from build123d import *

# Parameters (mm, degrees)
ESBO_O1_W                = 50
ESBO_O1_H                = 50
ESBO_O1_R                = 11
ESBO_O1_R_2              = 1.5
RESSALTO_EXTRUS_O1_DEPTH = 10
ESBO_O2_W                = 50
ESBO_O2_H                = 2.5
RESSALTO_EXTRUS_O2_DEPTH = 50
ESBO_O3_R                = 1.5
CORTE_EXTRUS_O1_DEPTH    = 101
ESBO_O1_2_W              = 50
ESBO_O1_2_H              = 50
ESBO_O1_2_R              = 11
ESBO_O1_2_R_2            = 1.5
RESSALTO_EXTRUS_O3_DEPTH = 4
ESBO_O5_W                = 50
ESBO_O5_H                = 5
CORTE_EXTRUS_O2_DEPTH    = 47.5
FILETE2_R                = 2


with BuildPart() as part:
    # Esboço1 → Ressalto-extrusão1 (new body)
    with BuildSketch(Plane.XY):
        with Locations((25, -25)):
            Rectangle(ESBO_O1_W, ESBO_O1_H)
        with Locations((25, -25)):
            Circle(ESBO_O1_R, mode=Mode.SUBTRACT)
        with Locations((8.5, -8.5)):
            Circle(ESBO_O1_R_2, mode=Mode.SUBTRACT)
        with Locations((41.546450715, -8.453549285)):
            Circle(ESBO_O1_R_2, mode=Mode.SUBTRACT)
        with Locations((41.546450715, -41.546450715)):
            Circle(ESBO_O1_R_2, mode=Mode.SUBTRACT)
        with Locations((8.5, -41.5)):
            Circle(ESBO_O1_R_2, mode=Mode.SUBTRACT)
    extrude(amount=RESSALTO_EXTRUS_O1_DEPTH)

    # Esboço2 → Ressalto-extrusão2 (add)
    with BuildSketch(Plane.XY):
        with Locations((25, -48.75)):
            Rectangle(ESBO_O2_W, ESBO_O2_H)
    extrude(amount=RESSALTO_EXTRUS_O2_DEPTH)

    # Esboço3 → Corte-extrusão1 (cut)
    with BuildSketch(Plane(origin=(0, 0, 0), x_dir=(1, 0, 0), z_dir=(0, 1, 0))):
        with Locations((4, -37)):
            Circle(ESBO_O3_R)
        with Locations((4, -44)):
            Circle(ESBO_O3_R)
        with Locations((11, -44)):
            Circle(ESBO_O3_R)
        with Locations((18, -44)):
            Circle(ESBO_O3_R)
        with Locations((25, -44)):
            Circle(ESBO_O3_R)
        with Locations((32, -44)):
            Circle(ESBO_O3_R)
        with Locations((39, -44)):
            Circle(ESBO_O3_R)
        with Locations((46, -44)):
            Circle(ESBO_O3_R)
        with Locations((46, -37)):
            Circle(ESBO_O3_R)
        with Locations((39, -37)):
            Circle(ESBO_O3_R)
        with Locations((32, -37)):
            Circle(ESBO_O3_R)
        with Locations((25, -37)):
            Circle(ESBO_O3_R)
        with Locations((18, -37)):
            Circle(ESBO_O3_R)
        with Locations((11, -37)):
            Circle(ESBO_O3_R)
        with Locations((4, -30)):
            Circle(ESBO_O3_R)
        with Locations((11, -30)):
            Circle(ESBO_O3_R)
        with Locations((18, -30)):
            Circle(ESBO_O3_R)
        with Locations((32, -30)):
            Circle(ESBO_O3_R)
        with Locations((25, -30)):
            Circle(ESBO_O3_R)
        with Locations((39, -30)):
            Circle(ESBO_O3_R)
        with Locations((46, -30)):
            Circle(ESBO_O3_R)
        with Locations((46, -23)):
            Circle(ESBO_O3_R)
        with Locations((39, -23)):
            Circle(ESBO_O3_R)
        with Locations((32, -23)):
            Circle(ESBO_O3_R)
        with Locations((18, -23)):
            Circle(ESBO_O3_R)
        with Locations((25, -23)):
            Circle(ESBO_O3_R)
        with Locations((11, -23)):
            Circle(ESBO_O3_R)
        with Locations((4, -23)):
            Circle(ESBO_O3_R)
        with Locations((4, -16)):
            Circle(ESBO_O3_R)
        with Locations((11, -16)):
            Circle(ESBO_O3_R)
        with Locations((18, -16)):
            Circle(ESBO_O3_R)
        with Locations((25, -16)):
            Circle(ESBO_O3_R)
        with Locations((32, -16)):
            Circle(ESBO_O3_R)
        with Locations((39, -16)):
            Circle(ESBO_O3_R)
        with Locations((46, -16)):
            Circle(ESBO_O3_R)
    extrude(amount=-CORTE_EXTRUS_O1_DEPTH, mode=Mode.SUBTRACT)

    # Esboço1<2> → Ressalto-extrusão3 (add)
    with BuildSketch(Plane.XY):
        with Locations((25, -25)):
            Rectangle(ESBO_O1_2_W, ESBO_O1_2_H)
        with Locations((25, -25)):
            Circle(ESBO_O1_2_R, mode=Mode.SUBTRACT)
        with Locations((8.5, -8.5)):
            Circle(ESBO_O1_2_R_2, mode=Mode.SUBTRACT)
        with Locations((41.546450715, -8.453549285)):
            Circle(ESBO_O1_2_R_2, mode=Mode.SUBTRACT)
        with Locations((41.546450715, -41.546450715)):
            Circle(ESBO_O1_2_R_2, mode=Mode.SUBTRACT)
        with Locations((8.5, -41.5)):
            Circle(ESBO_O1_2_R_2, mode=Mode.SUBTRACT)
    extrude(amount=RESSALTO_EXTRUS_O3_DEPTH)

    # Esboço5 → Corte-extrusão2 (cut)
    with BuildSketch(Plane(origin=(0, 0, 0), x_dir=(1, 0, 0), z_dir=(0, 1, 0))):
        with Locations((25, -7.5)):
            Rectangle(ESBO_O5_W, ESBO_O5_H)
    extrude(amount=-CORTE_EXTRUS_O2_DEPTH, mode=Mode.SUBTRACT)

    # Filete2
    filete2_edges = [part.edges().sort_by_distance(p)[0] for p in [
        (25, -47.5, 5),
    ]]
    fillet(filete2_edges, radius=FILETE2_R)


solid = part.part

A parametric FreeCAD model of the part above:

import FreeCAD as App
import Part
import Sketcher


def edges_at(feature, points):
    """Names of the edges that pass closest to the given points."""
    edges = feature.Shape.Edges
    near = lambda p: min(range(len(edges)), key=lambda i: edges[i].distToShape(Part.Vertex(*p))[0])
    return sorted({f"Edge{near(p) + 1}" for p in points})

doc = App.newDocument("Part")
params = doc.addObject("Spreadsheet::Sheet", "Params")
for row, (alias, value) in enumerate([
    ("sketch1_diameter", "3 mm"),
    ("sketch1_diameter2", "22 mm"),
    ("sketch1_width", "50 mm"),
    ("pad1_length", "10 mm"),
    ("sketch2_width", "50 mm"),
    ("sketch2_height", "2.5 mm"),
    ("pad2_length", "50 mm"),
    ("sketch3_diameter", "3 mm"),
    ("pocket1_length", "101 mm"),
    ("sketch4_diameter", "3 mm"),
    ("sketch4_diameter2", "22 mm"),
    ("sketch4_width", "50 mm"),
    ("pad3_length", "4 mm"),
    ("sketch5_width", "50 mm"),
    ("sketch5_height", "5 mm"),
    ("pocket2_length", "47.5 mm"),
    ("fillet_radius", "2 mm"),
], start=1):
    params.set(f"A{row}", alias)
    params.set(f"B{row}", "=" + value)
    params.setAlias(f"B{row}", alias)

body = doc.addObject("PartDesign::Body", "Body")

# Sketch on XY plane
sketch1 = body.newObject("Sketcher::SketchObject", "Sketch")
sketch1.AttachmentSupport = (doc.getObject("XY_Plane"), [""])
sketch1.MapMode = "FlatFace"
sketch1.addGeometry(Part.LineSegment(App.Vector(0, 0, 0), App.Vector(0, -50, 0)), False)
sketch1.addGeometry(Part.LineSegment(App.Vector(0, -50, 0), App.Vector(50, -50, 0)), False)
sketch1.addGeometry(Part.LineSegment(App.Vector(50, -50, 0), App.Vector(50, 0, 0)), False)
sketch1.addGeometry(Part.LineSegment(App.Vector(50, 0, 0), App.Vector(0, 0, 0)), False)
sketch1.addGeometry(Part.Circle(App.Vector(8.5, -41.5, 0), App.Vector(0, 0, 1), 1.5), False)
sketch1.addGeometry(Part.Circle(App.Vector(41.5, -41.5, 0), App.Vector(0, 0, 1), 1.5), False)
sketch1.addGeometry(Part.Circle(App.Vector(25, -25, 0), App.Vector(0, 0, 1), 11), False)
sketch1.addGeometry(Part.Circle(App.Vector(8.5, -8.5, 0), App.Vector(0, 0, 1), 1.5), False)
sketch1.addGeometry(Part.Circle(App.Vector(41.5, -8.5, 0), App.Vector(0, 0, 1), 1.5), False)
sketch1.addConstraint(Sketcher.Constraint("Coincident", 0, 2, 1, 1))
sketch1.addConstraint(Sketcher.Constraint("Coincident", 1, 2, 2, 1))
sketch1.addConstraint(Sketcher.Constraint("Coincident", 2, 2, 3, 1))
sketch1.addConstraint(Sketcher.Constraint("Coincident", 3, 2, 0, 1))
sketch1.addConstraint(Sketcher.Constraint("Vertical", 0))
sketch1.addConstraint(Sketcher.Constraint("Horizontal", 1))
sketch1.addConstraint(Sketcher.Constraint("Vertical", 2))
sketch1.addConstraint(Sketcher.Constraint("Horizontal", 3))
sketch1.addConstraint(Sketcher.Constraint("Coincident", 3, 2, -1, 1))
sketch1.addConstraint(Sketcher.Constraint("Equal", 4, 5))
sketch1.addConstraint(Sketcher.Constraint("Equal", 5, 7))
sketch1.addConstraint(Sketcher.Constraint("Equal", 7, 8))
sketch1.addConstraint(Sketcher.Constraint("Vertical", 4, 3, 7, 3))
sketch1.addConstraint(Sketcher.Constraint("Vertical", 5, 3, 8, 3))
sketch1.addConstraint(Sketcher.Constraint("Equal", 3, 0))
sketch1.addConstraint(Sketcher.Constraint("Diameter", 4, 3.0))
sketch1.addConstraint(Sketcher.Constraint("Diameter", 6, 22.0))
sketch1.addConstraint(Sketcher.Constraint("DistanceX", 1, 1, 1, 2, 50.0))
sketch1.addConstraint(Sketcher.Constraint("DistanceX", -1, 1, 6, 3, 25.0))
sketch1.addConstraint(Sketcher.Constraint("DistanceY", 6, 3, -1, 1, 25.0))
sketch1.addConstraint(Sketcher.Constraint("DistanceY", 4, 3, 7, 3, 33.0))
sketch1.addConstraint(Sketcher.Constraint("DistanceX", -1, 1, 4, 3, 8.5))
sketch1.addConstraint(Sketcher.Constraint("DistanceY", 4, 3, -1, 1, 41.5))
sketch1.addConstraint(Sketcher.Constraint("DistanceY", 5, 3, 8, 3, 33.092901))
sketch1.addConstraint(Sketcher.Constraint("DistanceX", -1, 1, 5, 3, 41.546451))
sketch1.addConstraint(Sketcher.Constraint("DistanceY", 5, 3, -1, 1, 41.546451))
sketch1.setExpression("Constraints[15]", "Params.sketch1_diameter")
sketch1.setExpression("Constraints[16]", "Params.sketch1_diameter2")
sketch1.setExpression("Constraints[17]", "Params.sketch1_width")
pad1 = body.newObject("PartDesign::Pad", "Pad")
pad1.Profile = sketch1
pad1.setExpression("Length", "Params.pad1_length")

# Sketch on XY plane
sketch2 = body.newObject("Sketcher::SketchObject", "Sketch001")
sketch2.AttachmentSupport = (doc.getObject("XY_Plane"), [""])
sketch2.MapMode = "FlatFace"
sketch2.addGeometry(Part.LineSegment(App.Vector(0, -47.5, 0), App.Vector(0, -50, 0)), False)
sketch2.addGeometry(Part.LineSegment(App.Vector(0, -50, 0), App.Vector(50, -50, 0)), False)
sketch2.addGeometry(Part.LineSegment(App.Vector(50, -50, 0), App.Vector(50, -47.5, 0)), False)
sketch2.addGeometry(Part.LineSegment(App.Vector(50, -47.5, 0), App.Vector(0, -47.5, 0)), False)
sketch2.addConstraint(Sketcher.Constraint("Coincident", 0, 2, 1, 1))
sketch2.addConstraint(Sketcher.Constraint("Coincident", 1, 2, 2, 1))
sketch2.addConstraint(Sketcher.Constraint("Coincident", 2, 2, 3, 1))
sketch2.addConstraint(Sketcher.Constraint("Coincident", 3, 2, 0, 1))
sketch2.addConstraint(Sketcher.Constraint("Vertical", 0))
sketch2.addConstraint(Sketcher.Constraint("Horizontal", 1))
sketch2.addConstraint(Sketcher.Constraint("Vertical", 2))
sketch2.addConstraint(Sketcher.Constraint("Horizontal", 3))
sketch2.addConstraint(Sketcher.Constraint("PointOnObject", 0, 2, -2))
sketch2.addConstraint(Sketcher.Constraint("DistanceX", 1, 1, 1, 2, 50.0))
sketch2.addConstraint(Sketcher.Constraint("DistanceY", 0, 2, 0, 1, 2.5))
sketch2.addConstraint(Sketcher.Constraint("DistanceY", 0, 2, -1, 1, 50.0))
sketch2.setExpression("Constraints[9]", "Params.sketch2_width")
sketch2.setExpression("Constraints[10]", "Params.sketch2_height")
pad2 = body.newObject("PartDesign::Pad", "Pad001")
pad2.Profile = sketch2
pad2.setExpression("Length", "Params.pad2_length")

# Sketch on XZ plane
sketch3 = body.newObject("Sketcher::SketchObject", "Sketch002")
sketch3.AttachmentSupport = (doc.getObject("XZ_Plane"), [""])
sketch3.MapMode = "FlatFace"
sketch3.addGeometry(Part.Circle(App.Vector(4, 37, 0), App.Vector(0, 0, 1), 1.5), False)
sketch3.addGeometry(Part.Circle(App.Vector(4, 44, 0), App.Vector(0, 0, 1), 1.5), False)
sketch3.addGeometry(Part.Circle(App.Vector(11, 44, 0), App.Vector(0, 0, 1), 1.5), False)
sketch3.addGeometry(Part.Circle(App.Vector(18, 44, 0), App.Vector(0, 0, 1), 1.5), False)
sketch3.addGeometry(Part.Circle(App.Vector(25, 44, 0), App.Vector(0, 0, 1), 1.5), False)
sketch3.addGeometry(Part.Circle(App.Vector(32, 44, 0), App.Vector(0, 0, 1), 1.5), False)
sketch3.addGeometry(Part.Circle(App.Vector(39, 44, 0), App.Vector(0, 0, 1), 1.5), False)
sketch3.addGeometry(Part.Circle(App.Vector(46, 44, 0), App.Vector(0, 0, 1), 1.5), False)
sketch3.addGeometry(Part.Circle(App.Vector(46, 37, 0), App.Vector(0, 0, 1), 1.5), False)
sketch3.addGeometry(Part.Circle(App.Vector(39, 37, 0), App.Vector(0, 0, 1), 1.5), False)
sketch3.addGeometry(Part.Circle(App.Vector(32, 37, 0), App.Vector(0, 0, 1), 1.5), False)
sketch3.addGeometry(Part.Circle(App.Vector(25, 37, 0), App.Vector(0, 0, 1), 1.5), False)
sketch3.addGeometry(Part.Circle(App.Vector(18, 37, 0), App.Vector(0, 0, 1), 1.5), False)
sketch3.addGeometry(Part.Circle(App.Vector(11, 37, 0), App.Vector(0, 0, 1), 1.5), False)
sketch3.addGeometry(Part.Circle(App.Vector(4, 30, 0), App.Vector(0, 0, 1), 1.5), False)
sketch3.addGeometry(Part.Circle(App.Vector(11, 30, 0), App.Vector(0, 0, 1), 1.5), False)
sketch3.addGeometry(Part.Circle(App.Vector(18, 30, 0), App.Vector(0, 0, 1), 1.5), False)
sketch3.addGeometry(Part.Circle(App.Vector(32, 30, 0), App.Vector(0, 0, 1), 1.5), False)
sketch3.addGeometry(Part.Circle(App.Vector(25, 30, 0), App.Vector(0, 0, 1), 1.5), False)
sketch3.addGeometry(Part.Circle(App.Vector(39, 30, 0), App.Vector(0, 0, 1), 1.5), False)
sketch3.addGeometry(Part.Circle(App.Vector(46, 30, 0), App.Vector(0, 0, 1), 1.5), False)
sketch3.addGeometry(Part.Circle(App.Vector(46, 23, 0), App.Vector(0, 0, 1), 1.5), False)
sketch3.addGeometry(Part.Circle(App.Vector(39, 23, 0), App.Vector(0, 0, 1), 1.5), False)
sketch3.addGeometry(Part.Circle(App.Vector(32, 23, 0), App.Vector(0, 0, 1), 1.5), False)
sketch3.addGeometry(Part.Circle(App.Vector(18, 23, 0), App.Vector(0, 0, 1), 1.5), False)
sketch3.addGeometry(Part.Circle(App.Vector(25, 23, 0), App.Vector(0, 0, 1), 1.5), False)
sketch3.addGeometry(Part.Circle(App.Vector(11, 23, 0), App.Vector(0, 0, 1), 1.5), False)
sketch3.addGeometry(Part.Circle(App.Vector(4, 23, 0), App.Vector(0, 0, 1), 1.5), False)
sketch3.addGeometry(Part.Circle(App.Vector(4, 16, 0), App.Vector(0, 0, 1), 1.5), False)
sketch3.addGeometry(Part.Circle(App.Vector(11, 16, 0), App.Vector(0, 0, 1), 1.5), False)
sketch3.addGeometry(Part.Circle(App.Vector(18, 16, 0), App.Vector(0, 0, 1), 1.5), False)
sketch3.addGeometry(Part.Circle(App.Vector(25, 16, 0), App.Vector(0, 0, 1), 1.5), False)
sketch3.addGeometry(Part.Circle(App.Vector(32, 16, 0), App.Vector(0, 0, 1), 1.5), False)
sketch3.addGeometry(Part.Circle(App.Vector(39, 16, 0), App.Vector(0, 0, 1), 1.5), False)
sketch3.addGeometry(Part.Circle(App.Vector(46, 16, 0), App.Vector(0, 0, 1), 1.5), False)
sketch3.addConstraint(Sketcher.Constraint("Equal", 0, 1))
sketch3.addConstraint(Sketcher.Constraint("Equal", 1, 2))
sketch3.addConstraint(Sketcher.Constraint("Equal", 2, 3))
sketch3.addConstraint(Sketcher.Constraint("Equal", 3, 4))
sketch3.addConstraint(Sketcher.Constraint("Equal", 4, 5))
sketch3.addConstraint(Sketcher.Constraint("Equal", 5, 6))
sketch3.addConstraint(Sketcher.Constraint("Equal", 6, 7))
sketch3.addConstraint(Sketcher.Constraint("Equal", 7, 8))
sketch3.addConstraint(Sketcher.Constraint("Equal", 8, 9))
sketch3.addConstraint(Sketcher.Constraint("Equal", 9, 10))
sketch3.addConstraint(Sketcher.Constraint("Equal", 10, 11))
sketch3.addConstraint(Sketcher.Constraint("Equal", 11, 12))
sketch3.addConstraint(Sketcher.Constraint("Equal", 12, 13))
sketch3.addConstraint(Sketcher.Constraint("Equal", 13, 14))
sketch3.addConstraint(Sketcher.Constraint("Equal", 14, 15))
sketch3.addConstraint(Sketcher.Constraint("Equal", 15, 16))
sketch3.addConstraint(Sketcher.Constraint("Equal", 16, 17))
sketch3.addConstraint(Sketcher.Constraint("Equal", 17, 18))
sketch3.addConstraint(Sketcher.Constraint("Equal", 18, 19))
sketch3.addConstraint(Sketcher.Constraint("Equal", 19, 20))
sketch3.addConstraint(Sketcher.Constraint("Equal", 20, 21))
sketch3.addConstraint(Sketcher.Constraint("Equal", 21, 22))
sketch3.addConstraint(Sketcher.Constraint("Equal", 22, 23))
sketch3.addConstraint(Sketcher.Constraint("Equal", 23, 24))
sketch3.addConstraint(Sketcher.Constraint("Equal", 24, 25))
sketch3.addConstraint(Sketcher.Constraint("Equal", 25, 26))
sketch3.addConstraint(Sketcher.Constraint("Equal", 26, 27))
sketch3.addConstraint(Sketcher.Constraint("Equal", 27, 28))
sketch3.addConstraint(Sketcher.Constraint("Equal", 28, 29))
sketch3.addConstraint(Sketcher.Constraint("Equal", 29, 30))
sketch3.addConstraint(Sketcher.Constraint("Equal", 30, 31))
sketch3.addConstraint(Sketcher.Constraint("Equal", 31, 32))
sketch3.addConstraint(Sketcher.Constraint("Equal", 32, 33))
sketch3.addConstraint(Sketcher.Constraint("Equal", 33, 34))
sketch3.addConstraint(Sketcher.Constraint("Horizontal", 1, 3, 2, 3))
sketch3.addConstraint(Sketcher.Constraint("Horizontal", 2, 3, 3, 3))
sketch3.addConstraint(Sketcher.Constraint("Horizontal", 3, 3, 4, 3))
sketch3.addConstraint(Sketcher.Constraint("Horizontal", 4, 3, 5, 3))
sketch3.addConstraint(Sketcher.Constraint("Horizontal", 5, 3, 6, 3))
sketch3.addConstraint(Sketcher.Constraint("Horizontal", 6, 3, 7, 3))
sketch3.addConstraint(Sketcher.Constraint("Horizontal", 0, 3, 8, 3))
sketch3.addConstraint(Sketcher.Constraint("Horizontal", 8, 3, 9, 3))
sketch3.addConstraint(Sketcher.Constraint("Horizontal", 9, 3, 10, 3))
sketch3.addConstraint(Sketcher.Constraint("Horizontal", 10, 3, 11, 3))
sketch3.addConstraint(Sketcher.Constraint("Horizontal", 11, 3, 12, 3))
sketch3.addConstraint(Sketcher.Constraint("Horizontal", 12, 3, 13, 3))
sketch3.addConstraint(Sketcher.Constraint("Horizontal", 14, 3, 15, 3))
sketch3.addConstraint(Sketcher.Constraint("Horizontal", 15, 3, 16, 3))
sketch3.addConstraint(Sketcher.Constraint("Horizontal", 16, 3, 17, 3))
sketch3.addConstraint(Sketcher.Constraint("Horizontal", 17, 3, 18, 3))
sketch3.addConstraint(Sketcher.Constraint("Horizontal", 18, 3, 19, 3))
sketch3.addConstraint(Sketcher.Constraint("Horizontal", 19, 3, 20, 3))
sketch3.addConstraint(Sketcher.Constraint("Horizontal", 21, 3, 22, 3))
sketch3.addConstraint(Sketcher.Constraint("Horizontal", 22, 3, 23, 3))
sketch3.addConstraint(Sketcher.Constraint("Horizontal", 23, 3, 24, 3))
sketch3.addConstraint(Sketcher.Constraint("Horizontal", 24, 3, 25, 3))
sketch3.addConstraint(Sketcher.Constraint("Horizontal", 25, 3, 26, 3))
sketch3.addConstraint(Sketcher.Constraint("Horizontal", 26, 3, 27, 3))
sketch3.addConstraint(Sketcher.Constraint("Horizontal", 28, 3, 29, 3))
sketch3.addConstraint(Sketcher.Constraint("Horizontal", 29, 3, 30, 3))
sketch3.addConstraint(Sketcher.Constraint("Horizontal", 30, 3, 31, 3))
sketch3.addConstraint(Sketcher.Constraint("Horizontal", 31, 3, 32, 3))
sketch3.addConstraint(Sketcher.Constraint("Horizontal", 32, 3, 33, 3))
sketch3.addConstraint(Sketcher.Constraint("Horizontal", 33, 3, 34, 3))
sketch3.addConstraint(Sketcher.Constraint("Vertical", 0, 3, 1, 3))
sketch3.addConstraint(Sketcher.Constraint("Vertical", 7, 3, 8, 3))
sketch3.addConstraint(Sketcher.Constraint("Vertical", 6, 3, 9, 3))
sketch3.addConstraint(Sketcher.Constraint("Vertical", 5, 3, 10, 3))
sketch3.addConstraint(Sketcher.Constraint("Vertical", 4, 3, 11, 3))
sketch3.addConstraint(Sketcher.Constraint("Vertical", 3, 3, 12, 3))
sketch3.addConstraint(Sketcher.Constraint("Vertical", 2, 3, 13, 3))
sketch3.addConstraint(Sketcher.Constraint("Vertical", 1, 3, 14, 3))
sketch3.addConstraint(Sketcher.Constraint("Vertical", 13, 3, 15, 3))
sketch3.addConstraint(Sketcher.Constraint("Vertical", 12, 3, 16, 3))
sketch3.addConstraint(Sketcher.Constraint("Vertical", 10, 3, 17, 3))
sketch3.addConstraint(Sketcher.Constraint("Vertical", 11, 3, 18, 3))
sketch3.addConstraint(Sketcher.Constraint("Vertical", 9, 3, 19, 3))
sketch3.addConstraint(Sketcher.Constraint("Vertical", 8, 3, 20, 3))
sketch3.addConstraint(Sketcher.Constraint("Vertical", 20, 3, 21, 3))
sketch3.addConstraint(Sketcher.Constraint("Vertical", 19, 3, 22, 3))
sketch3.addConstraint(Sketcher.Constraint("Vertical", 17, 3, 23, 3))
sketch3.addConstraint(Sketcher.Constraint("Vertical", 16, 3, 24, 3))
sketch3.addConstraint(Sketcher.Constraint("Vertical", 18, 3, 25, 3))
sketch3.addConstraint(Sketcher.Constraint("Vertical", 15, 3, 26, 3))
sketch3.addConstraint(Sketcher.Constraint("Vertical", 14, 3, 27, 3))
sketch3.addConstraint(Sketcher.Constraint("Vertical", 27, 3, 28, 3))
sketch3.addConstraint(Sketcher.Constraint("Vertical", 26, 3, 29, 3))
sketch3.addConstraint(Sketcher.Constraint("Vertical", 24, 3, 30, 3))
sketch3.addConstraint(Sketcher.Constraint("Vertical", 25, 3, 31, 3))
sketch3.addConstraint(Sketcher.Constraint("Vertical", 23, 3, 32, 3))
sketch3.addConstraint(Sketcher.Constraint("Vertical", 22, 3, 33, 3))
sketch3.addConstraint(Sketcher.Constraint("Vertical", 21, 3, 34, 3))
sketch3.addConstraint(Sketcher.Constraint("Diameter", 0, 3.0))
sketch3.addConstraint(Sketcher.Constraint("DistanceX", -1, 1, 0, 3, 4.0))
sketch3.addConstraint(Sketcher.Constraint("DistanceY", -1, 1, 0, 3, 37.0))
sketch3.addConstraint(Sketcher.Constraint("DistanceY", -1, 1, 1, 3, 44.0))
sketch3.addConstraint(Sketcher.Constraint("DistanceX", -1, 1, 2, 3, 11.0))
sketch3.addConstraint(Sketcher.Constraint("DistanceX", -1, 1, 3, 3, 18.0))
sketch3.addConstraint(Sketcher.Constraint("DistanceX", -1, 1, 4, 3, 25.0))
sketch3.addConstraint(Sketcher.Constraint("DistanceX", -1, 1, 5, 3, 32.0))
sketch3.addConstraint(Sketcher.Constraint("DistanceX", -1, 1, 6, 3, 39.0))
sketch3.addConstraint(Sketcher.Constraint("DistanceX", -1, 1, 7, 3, 46.0))
sketch3.addConstraint(Sketcher.Constraint("DistanceY", -1, 1, 14, 3, 30.0))
sketch3.addConstraint(Sketcher.Constraint("DistanceY", -1, 1, 21, 3, 23.0))
sketch3.addConstraint(Sketcher.Constraint("DistanceY", -1, 1, 28, 3, 16.0))
sketch3.setExpression("Constraints[92]", "Params.sketch3_diameter")
pocket1 = body.newObject("PartDesign::Pocket", "Pocket")
pocket1.Profile = sketch3
pocket1.setExpression("Length", "Params.pocket1_length")
pocket1.Reversed = True

# Sketch on XY plane
sketch4 = body.newObject("Sketcher::SketchObject", "Sketch003")
sketch4.AttachmentSupport = (doc.getObject("XY_Plane"), [""])
sketch4.MapMode = "FlatFace"
sketch4.addGeometry(Part.LineSegment(App.Vector(0, 0, 0), App.Vector(0, -50, 0)), False)
sketch4.addGeometry(Part.LineSegment(App.Vector(0, -50, 0), App.Vector(50, -50, 0)), False)
sketch4.addGeometry(Part.LineSegment(App.Vector(50, -50, 0), App.Vector(50, 0, 0)), False)
sketch4.addGeometry(Part.LineSegment(App.Vector(50, 0, 0), App.Vector(0, 0, 0)), False)
sketch4.addGeometry(Part.Circle(App.Vector(8.5, -41.5, 0), App.Vector(0, 0, 1), 1.5), False)
sketch4.addGeometry(Part.Circle(App.Vector(41.5, -41.5, 0), App.Vector(0, 0, 1), 1.5), False)
sketch4.addGeometry(Part.Circle(App.Vector(25, -25, 0), App.Vector(0, 0, 1), 11), False)
sketch4.addGeometry(Part.Circle(App.Vector(8.5, -8.5, 0), App.Vector(0, 0, 1), 1.5), False)
sketch4.addGeometry(Part.Circle(App.Vector(41.5, -8.5, 0), App.Vector(0, 0, 1), 1.5), False)
sketch4.addConstraint(Sketcher.Constraint("Coincident", 0, 2, 1, 1))
sketch4.addConstraint(Sketcher.Constraint("Coincident", 1, 2, 2, 1))
sketch4.addConstraint(Sketcher.Constraint("Coincident", 2, 2, 3, 1))
sketch4.addConstraint(Sketcher.Constraint("Coincident", 3, 2, 0, 1))
sketch4.addConstraint(Sketcher.Constraint("Vertical", 0))
sketch4.addConstraint(Sketcher.Constraint("Horizontal", 1))
sketch4.addConstraint(Sketcher.Constraint("Vertical", 2))
sketch4.addConstraint(Sketcher.Constraint("Horizontal", 3))
sketch4.addConstraint(Sketcher.Constraint("Coincident", 3, 2, -1, 1))
sketch4.addConstraint(Sketcher.Constraint("Equal", 4, 5))
sketch4.addConstraint(Sketcher.Constraint("Equal", 5, 7))
sketch4.addConstraint(Sketcher.Constraint("Equal", 7, 8))
sketch4.addConstraint(Sketcher.Constraint("Vertical", 4, 3, 7, 3))
sketch4.addConstraint(Sketcher.Constraint("Vertical", 5, 3, 8, 3))
sketch4.addConstraint(Sketcher.Constraint("Equal", 3, 0))
sketch4.addConstraint(Sketcher.Constraint("Diameter", 4, 3.0))
sketch4.addConstraint(Sketcher.Constraint("Diameter", 6, 22.0))
sketch4.addConstraint(Sketcher.Constraint("DistanceX", 1, 1, 1, 2, 50.0))
sketch4.addConstraint(Sketcher.Constraint("DistanceX", -1, 1, 6, 3, 25.0))
sketch4.addConstraint(Sketcher.Constraint("DistanceY", 6, 3, -1, 1, 25.0))
sketch4.addConstraint(Sketcher.Constraint("DistanceY", 4, 3, 7, 3, 33.0))
sketch4.addConstraint(Sketcher.Constraint("DistanceX", -1, 1, 4, 3, 8.5))
sketch4.addConstraint(Sketcher.Constraint("DistanceY", 4, 3, -1, 1, 41.5))
sketch4.addConstraint(Sketcher.Constraint("DistanceY", 5, 3, 8, 3, 33.092901))
sketch4.addConstraint(Sketcher.Constraint("DistanceX", -1, 1, 5, 3, 41.546451))
sketch4.addConstraint(Sketcher.Constraint("DistanceY", 5, 3, -1, 1, 41.546451))
sketch4.setExpression("Constraints[15]", "Params.sketch4_diameter")
sketch4.setExpression("Constraints[16]", "Params.sketch4_diameter2")
sketch4.setExpression("Constraints[17]", "Params.sketch4_width")
pad3 = body.newObject("PartDesign::Pad", "Pad002")
pad3.Profile = sketch4
pad3.setExpression("Length", "Params.pad3_length")

# Sketch on XZ plane
sketch5 = body.newObject("Sketcher::SketchObject", "Sketch004")
sketch5.AttachmentSupport = (doc.getObject("XZ_Plane"), [""])
sketch5.MapMode = "FlatFace"
sketch5.addGeometry(Part.LineSegment(App.Vector(0, 5, 0), App.Vector(0, 10, 0)), False)
sketch5.addGeometry(Part.LineSegment(App.Vector(0, 10, 0), App.Vector(50, 10, 0)), False)
sketch5.addGeometry(Part.LineSegment(App.Vector(50, 10, 0), App.Vector(50, 5, 0)), False)
sketch5.addGeometry(Part.LineSegment(App.Vector(50, 5, 0), App.Vector(0, 5, 0)), False)
sketch5.addConstraint(Sketcher.Constraint("Coincident", 0, 2, 1, 1))
sketch5.addConstraint(Sketcher.Constraint("Coincident", 1, 2, 2, 1))
sketch5.addConstraint(Sketcher.Constraint("Coincident", 2, 2, 3, 1))
sketch5.addConstraint(Sketcher.Constraint("Coincident", 3, 2, 0, 1))
sketch5.addConstraint(Sketcher.Constraint("Vertical", 0))
sketch5.addConstraint(Sketcher.Constraint("Horizontal", 1))
sketch5.addConstraint(Sketcher.Constraint("Vertical", 2))
sketch5.addConstraint(Sketcher.Constraint("Horizontal", 3))
sketch5.addConstraint(Sketcher.Constraint("PointOnObject", 0, 2, -2))
sketch5.addConstraint(Sketcher.Constraint("DistanceX", 1, 1, 1, 2, 50.0))
sketch5.addConstraint(Sketcher.Constraint("DistanceY", 0, 1, 0, 2, 5.0))
sketch5.addConstraint(Sketcher.Constraint("DistanceY", -1, 1, 0, 2, 10.0))
sketch5.setExpression("Constraints[9]", "Params.sketch5_width")
sketch5.setExpression("Constraints[10]", "Params.sketch5_height")
pocket2 = body.newObject("PartDesign::Pocket", "Pocket001")
pocket2.Profile = sketch5
pocket2.setExpression("Length", "Params.pocket2_length")
pocket2.Reversed = True
doc.recompute()

fillet = body.newObject("PartDesign::Fillet", "Fillet")
fillet.Base = (pocket2, edges_at(pocket2, [(25, -47.5, 5)]))
fillet.setExpression("Radius", "Params.fillet_radius")

doc.recompute()
